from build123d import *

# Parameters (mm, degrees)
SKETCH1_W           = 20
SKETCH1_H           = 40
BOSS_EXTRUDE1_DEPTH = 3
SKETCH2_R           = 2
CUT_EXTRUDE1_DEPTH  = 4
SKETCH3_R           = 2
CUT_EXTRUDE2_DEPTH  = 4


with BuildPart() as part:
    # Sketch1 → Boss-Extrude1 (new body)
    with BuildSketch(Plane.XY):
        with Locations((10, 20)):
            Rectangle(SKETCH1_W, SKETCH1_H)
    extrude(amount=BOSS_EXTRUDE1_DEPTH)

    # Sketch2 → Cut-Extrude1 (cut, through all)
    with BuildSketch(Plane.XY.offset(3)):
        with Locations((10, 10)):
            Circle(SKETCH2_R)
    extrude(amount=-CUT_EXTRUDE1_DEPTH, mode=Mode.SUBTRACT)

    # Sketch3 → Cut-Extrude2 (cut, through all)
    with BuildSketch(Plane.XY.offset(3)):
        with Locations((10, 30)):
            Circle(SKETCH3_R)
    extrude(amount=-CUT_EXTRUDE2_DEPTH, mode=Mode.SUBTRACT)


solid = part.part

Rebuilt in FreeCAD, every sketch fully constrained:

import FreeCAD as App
import Part
import Sketcher

V = App.Vector

doc = App.newDocument("Part")
body = doc.addObject("PartDesign::Body", "Body")

sketch1 = body.newObject("Sketcher::SketchObject", "Sketch")
sketch1.AttachmentSupport = (doc.getObject("XY_Plane"), [""])
sketch1.MapMode = "FlatFace"
sketch1.addGeometry([
    Part.LineSegment(V(0, 40, 0), V(0, 0, 0)),
    Part.LineSegment(V(0, 0, 0), V(20, 0, 0)),
    Part.LineSegment(V(20, 0, 0), V(20, 40, 0)),
    Part.LineSegment(V(20, 40, 0), V(0, 40, 0)),
], False)
sketch1.addConstraint([
    Sketcher.Constraint("Coincident", 0, 2, 1, 1),
    Sketcher.Constraint("Coincident", 1, 2, 2, 1),
    Sketcher.Constraint("Coincident", 2, 2, 3, 1),
    Sketcher.Constraint("Coincident", 3, 2, 0, 1),
    Sketcher.Constraint("Vertical", 0),
    Sketcher.Constraint("Horizontal", 1),
    Sketcher.Constraint("Vertical", 2),
    Sketcher.Constraint("Horizontal", 3),
    Sketcher.Constraint("Coincident", 0, 2, -1, 1),
    Sketcher.Constraint("DistanceX", 1, 1, 1, 2, 20.0),
    Sketcher.Constraint("DistanceY", 0, 2, 0, 1, 40.0),
])
pad1 = body.newObject("PartDesign::Pad", "Pad")
pad1.Profile = sketch1
pad1.Length = 3

sketch2 = body.newObject("Sketcher::SketchObject", "Sketch001")
sketch2.AttachmentSupport = (doc.getObject("XY_Plane"), [""])
sketch2.MapMode = "FlatFace"
sketch2.AttachmentOffset = App.Placement(V(0, 0, 3), App.Rotation())
sketch2.addGeometry(Part.Circle(V(10, 10, 0), V(0, 0, 1), 2), False)
sketch2.addConstraint([
    Sketcher.Constraint("Diameter", 0, 4.0),
    Sketcher.Constraint("DistanceX", -1, 1, 0, 3, 10.0),
    Sketcher.Constraint("DistanceY", -1, 1, 0, 3, 10.0),
])
pocket1 = body.newObject("PartDesign::Pocket", "Pocket")
pocket1.Profile = sketch2
pocket1.Type = "ThroughAll"

sketch3 = body.newObject("Sketcher::SketchObject", "Sketch002")
sketch3.AttachmentSupport = (doc.getObject("XY_Plane"), [""])
sketch3.MapMode = "FlatFace"
sketch3.AttachmentOffset = App.Placement(V(0, 0, 3), App.Rotation())
sketch3.addGeometry(Part.Circle(V(10, 30, 0), V(0, 0, 1), 2), False)
sketch3.addConstraint([
    Sketcher.Constraint("Diameter", 0, 4.0),
    Sketcher.Constraint("DistanceX", -1, 1, 0, 3, 10.0),
    Sketcher.Constraint("DistanceY", -1, 1, 0, 3, 30.0),
])
pocket2 = body.newObject("PartDesign::Pocket", "Pocket001")
pocket2.Profile = sketch3
pocket2.Type = "ThroughAll"

doc.recompute()
